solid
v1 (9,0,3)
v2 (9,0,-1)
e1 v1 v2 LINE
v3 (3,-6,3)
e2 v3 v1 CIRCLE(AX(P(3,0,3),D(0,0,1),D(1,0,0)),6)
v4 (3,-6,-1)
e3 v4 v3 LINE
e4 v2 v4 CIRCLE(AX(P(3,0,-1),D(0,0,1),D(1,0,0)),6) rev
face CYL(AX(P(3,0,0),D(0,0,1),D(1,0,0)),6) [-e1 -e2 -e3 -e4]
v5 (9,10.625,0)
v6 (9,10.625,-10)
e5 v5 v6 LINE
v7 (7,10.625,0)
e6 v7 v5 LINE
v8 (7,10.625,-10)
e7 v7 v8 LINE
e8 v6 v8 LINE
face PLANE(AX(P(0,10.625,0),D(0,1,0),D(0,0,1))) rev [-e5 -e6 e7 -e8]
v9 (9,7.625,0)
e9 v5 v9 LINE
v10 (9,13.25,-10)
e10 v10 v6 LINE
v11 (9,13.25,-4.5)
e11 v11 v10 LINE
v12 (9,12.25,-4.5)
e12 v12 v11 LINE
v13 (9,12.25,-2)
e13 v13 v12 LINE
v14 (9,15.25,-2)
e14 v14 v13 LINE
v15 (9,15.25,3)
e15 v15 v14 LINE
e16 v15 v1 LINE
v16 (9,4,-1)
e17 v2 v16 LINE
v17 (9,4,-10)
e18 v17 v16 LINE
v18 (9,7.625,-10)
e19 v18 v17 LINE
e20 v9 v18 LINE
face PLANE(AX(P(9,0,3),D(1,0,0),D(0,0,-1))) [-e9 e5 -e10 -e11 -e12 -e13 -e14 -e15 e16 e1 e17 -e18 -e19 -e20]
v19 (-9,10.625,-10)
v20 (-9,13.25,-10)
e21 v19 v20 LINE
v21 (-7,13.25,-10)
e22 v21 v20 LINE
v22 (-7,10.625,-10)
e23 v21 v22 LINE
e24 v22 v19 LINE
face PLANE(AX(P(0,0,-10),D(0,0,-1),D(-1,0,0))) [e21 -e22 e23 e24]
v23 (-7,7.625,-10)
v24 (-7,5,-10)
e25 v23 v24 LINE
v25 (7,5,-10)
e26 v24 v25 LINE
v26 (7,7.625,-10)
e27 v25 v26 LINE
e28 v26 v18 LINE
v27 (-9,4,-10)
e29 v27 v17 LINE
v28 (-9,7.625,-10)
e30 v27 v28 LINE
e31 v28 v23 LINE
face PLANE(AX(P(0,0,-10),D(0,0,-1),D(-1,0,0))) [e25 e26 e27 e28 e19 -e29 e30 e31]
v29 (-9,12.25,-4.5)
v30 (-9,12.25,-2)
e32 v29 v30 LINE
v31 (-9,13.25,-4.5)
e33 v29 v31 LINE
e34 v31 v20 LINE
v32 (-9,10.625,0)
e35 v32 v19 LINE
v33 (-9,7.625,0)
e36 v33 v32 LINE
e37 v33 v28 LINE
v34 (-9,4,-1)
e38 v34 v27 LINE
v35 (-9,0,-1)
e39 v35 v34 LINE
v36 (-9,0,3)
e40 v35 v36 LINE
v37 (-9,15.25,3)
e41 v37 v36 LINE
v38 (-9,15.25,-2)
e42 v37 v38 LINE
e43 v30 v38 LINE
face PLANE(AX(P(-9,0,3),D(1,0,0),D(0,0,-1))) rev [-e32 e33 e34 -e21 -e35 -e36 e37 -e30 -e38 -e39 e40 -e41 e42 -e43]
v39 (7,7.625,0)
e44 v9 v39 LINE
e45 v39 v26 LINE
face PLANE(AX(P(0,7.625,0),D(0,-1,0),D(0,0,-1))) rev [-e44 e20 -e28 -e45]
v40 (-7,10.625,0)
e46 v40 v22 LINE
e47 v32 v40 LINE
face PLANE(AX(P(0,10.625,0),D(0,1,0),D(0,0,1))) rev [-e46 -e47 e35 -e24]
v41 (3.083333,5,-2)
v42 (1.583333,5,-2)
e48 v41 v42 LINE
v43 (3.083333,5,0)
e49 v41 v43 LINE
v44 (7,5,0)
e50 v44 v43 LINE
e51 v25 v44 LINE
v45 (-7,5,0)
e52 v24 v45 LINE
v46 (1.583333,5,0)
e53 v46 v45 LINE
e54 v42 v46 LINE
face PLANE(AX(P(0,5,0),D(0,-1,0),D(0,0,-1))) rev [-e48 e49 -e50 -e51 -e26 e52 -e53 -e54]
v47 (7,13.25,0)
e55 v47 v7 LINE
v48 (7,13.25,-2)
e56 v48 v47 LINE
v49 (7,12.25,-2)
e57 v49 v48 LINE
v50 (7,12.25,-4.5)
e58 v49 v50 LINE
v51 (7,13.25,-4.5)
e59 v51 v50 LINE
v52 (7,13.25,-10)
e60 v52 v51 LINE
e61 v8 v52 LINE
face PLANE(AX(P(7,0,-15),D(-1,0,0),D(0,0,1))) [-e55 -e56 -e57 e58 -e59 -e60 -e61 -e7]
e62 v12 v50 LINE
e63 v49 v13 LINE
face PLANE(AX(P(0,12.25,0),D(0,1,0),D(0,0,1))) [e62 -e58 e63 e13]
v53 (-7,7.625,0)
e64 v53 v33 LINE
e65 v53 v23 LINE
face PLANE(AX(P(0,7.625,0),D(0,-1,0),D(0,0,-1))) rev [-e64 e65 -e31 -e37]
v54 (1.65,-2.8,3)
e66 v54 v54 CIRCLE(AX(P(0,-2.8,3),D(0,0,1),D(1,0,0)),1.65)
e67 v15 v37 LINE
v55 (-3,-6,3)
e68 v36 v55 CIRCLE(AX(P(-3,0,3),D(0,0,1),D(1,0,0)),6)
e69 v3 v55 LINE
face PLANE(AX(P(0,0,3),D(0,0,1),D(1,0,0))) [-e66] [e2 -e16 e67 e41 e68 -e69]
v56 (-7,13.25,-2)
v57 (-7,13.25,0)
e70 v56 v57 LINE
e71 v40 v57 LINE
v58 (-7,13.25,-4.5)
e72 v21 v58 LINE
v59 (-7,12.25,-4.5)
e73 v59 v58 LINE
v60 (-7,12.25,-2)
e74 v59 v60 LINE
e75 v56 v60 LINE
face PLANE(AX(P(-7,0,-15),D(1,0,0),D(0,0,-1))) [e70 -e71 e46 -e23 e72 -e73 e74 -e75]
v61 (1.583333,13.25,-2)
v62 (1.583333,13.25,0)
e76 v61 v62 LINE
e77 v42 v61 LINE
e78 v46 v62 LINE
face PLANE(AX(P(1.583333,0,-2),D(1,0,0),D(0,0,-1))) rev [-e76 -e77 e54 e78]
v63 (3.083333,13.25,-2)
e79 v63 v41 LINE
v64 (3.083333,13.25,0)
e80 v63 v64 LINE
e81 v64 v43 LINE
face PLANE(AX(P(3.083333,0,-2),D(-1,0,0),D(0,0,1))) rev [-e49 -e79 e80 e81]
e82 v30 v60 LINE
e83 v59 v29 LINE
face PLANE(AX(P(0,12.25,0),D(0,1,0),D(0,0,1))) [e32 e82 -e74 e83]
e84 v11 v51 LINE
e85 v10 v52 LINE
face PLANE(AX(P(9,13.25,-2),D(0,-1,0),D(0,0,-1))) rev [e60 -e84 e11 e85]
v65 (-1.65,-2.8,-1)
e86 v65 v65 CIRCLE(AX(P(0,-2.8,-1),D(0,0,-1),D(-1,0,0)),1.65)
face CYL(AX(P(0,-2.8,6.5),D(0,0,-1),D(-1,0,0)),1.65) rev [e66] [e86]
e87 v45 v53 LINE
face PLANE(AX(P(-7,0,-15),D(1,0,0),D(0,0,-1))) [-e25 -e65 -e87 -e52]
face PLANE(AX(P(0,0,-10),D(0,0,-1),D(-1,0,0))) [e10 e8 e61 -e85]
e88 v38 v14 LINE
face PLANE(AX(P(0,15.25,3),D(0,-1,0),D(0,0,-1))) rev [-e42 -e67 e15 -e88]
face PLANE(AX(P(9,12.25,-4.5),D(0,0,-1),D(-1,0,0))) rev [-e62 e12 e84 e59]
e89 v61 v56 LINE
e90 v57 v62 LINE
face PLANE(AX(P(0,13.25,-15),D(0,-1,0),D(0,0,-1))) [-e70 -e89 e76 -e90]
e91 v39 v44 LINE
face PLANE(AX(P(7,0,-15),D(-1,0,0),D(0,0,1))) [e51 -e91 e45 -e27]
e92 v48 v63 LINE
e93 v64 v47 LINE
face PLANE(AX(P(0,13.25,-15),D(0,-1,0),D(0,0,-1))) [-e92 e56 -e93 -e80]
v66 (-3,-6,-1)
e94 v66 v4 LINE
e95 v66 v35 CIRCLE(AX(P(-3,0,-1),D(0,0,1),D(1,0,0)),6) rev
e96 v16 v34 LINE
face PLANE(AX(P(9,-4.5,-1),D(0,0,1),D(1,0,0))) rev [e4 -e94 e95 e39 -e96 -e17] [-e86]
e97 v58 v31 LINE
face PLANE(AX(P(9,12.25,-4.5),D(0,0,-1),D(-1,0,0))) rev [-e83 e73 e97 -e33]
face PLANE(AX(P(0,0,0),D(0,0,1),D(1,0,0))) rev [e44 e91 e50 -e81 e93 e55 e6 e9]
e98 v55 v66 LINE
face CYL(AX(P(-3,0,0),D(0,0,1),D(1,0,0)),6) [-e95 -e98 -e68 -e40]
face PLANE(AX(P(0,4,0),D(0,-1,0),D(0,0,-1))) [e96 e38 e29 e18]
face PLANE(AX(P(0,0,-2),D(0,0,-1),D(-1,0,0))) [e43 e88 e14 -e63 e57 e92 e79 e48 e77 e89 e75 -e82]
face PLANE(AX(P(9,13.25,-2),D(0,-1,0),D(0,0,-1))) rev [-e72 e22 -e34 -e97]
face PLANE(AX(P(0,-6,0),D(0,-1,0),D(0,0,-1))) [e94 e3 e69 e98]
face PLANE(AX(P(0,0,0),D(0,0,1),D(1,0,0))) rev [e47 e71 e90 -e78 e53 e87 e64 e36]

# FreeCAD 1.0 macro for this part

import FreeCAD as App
import Part
import Sketcher
Q = App.Units.Quantity


def edges_at(feature, points):
    """Names of the edges that pass closest to the given points."""
    edges = feature.Shape.Edges
    near = lambda p: min(range(len(edges)), key=lambda i: edges[i].distToShape(Part.Vertex(*p))[0])
    return sorted({f"Edge{near(p) + 1}" for p in points})

doc = App.newDocument("Part")
body = doc.addObject("PartDesign::Body", "Body")

sketch1 = body.newObject("Sketcher::SketchObject", "Sketch")
sketch1.AttachmentSupport = (doc.getObject("XY_Plane"), [""])
sketch1.MapMode = "FlatFace"
sketch1.addGeometry(Part.LineSegment(App.Vector(-9, 15.2, 0), App.Vector(-9, 5, 0)), False)
sketch1.addGeometry(Part.LineSegment(App.Vector(-9, 5, 0), App.Vector(-6.5, 0, 0)), False)
sketch1.addGeometry(Part.LineSegment(App.Vector(-6.5, 0, 0), App.Vector(-2, -6, 0)), False)
sketch1.addGeometry(Part.LineSegment(App.Vector(-2, -6, 0), App.Vector(2, -6, 0)), False)
sketch1.addGeometry(Part.LineSegment(App.Vector(2, -6, 0), App.Vector(6.5, 0, 0)), False)
sketch1.addGeometry(Part.LineSegment(App.Vector(6.5, 0, 0), App.Vector(9, 5, 0)), False)
sketch1.addGeometry(Part.LineSegment(App.Vector(9, 5, 0), App.Vector(9, 15.2, 0)), False)
sketch1.addGeometry(Part.LineSegment(App.Vector(9, 15.2, 0), App.Vector(-9, 15.2, 0)), False)
sketch1.addGeometry(Part.Circle(App.Vector(0, 0, 0), App.Vector(0, 0, 1), 1.6), False)
sketch1.addConstraint(Sketcher.Constraint("Coincident", 0, 2, 1, 1))
sketch1.addConstraint(Sketcher.Constraint("Coincident", 1, 2, 2, 1))
sketch1.addConstraint(Sketcher.Constraint("Coincident", 2, 2, 3, 1))
sketch1.addConstraint(Sketcher.Constraint("Coincident", 3, 2, 4, 1))
sketch1.addConstraint(Sketcher.Constraint("Coincident", 4, 2, 5, 1))
sketch1.addConstraint(Sketcher.Constraint("Coincident", 5, 2, 6, 1))
sketch1.addConstraint(Sketcher.Constraint("Coincident", 6, 2, 7, 1))
sketch1.addConstraint(Sketcher.Constraint("Coincident", 7, 2, 0, 1))
sketch1.addConstraint(Sketcher.Constraint("Vertical", 0))
sketch1.addConstraint(Sketcher.Constraint("Horizontal", 3))
sketch1.addConstraint(Sketcher.Constraint("Vertical", 6))
sketch1.addConstraint(Sketcher.Constraint("Horizontal", 7))
sketch1.addConstraint(Sketcher.Constraint("Coincident", 8, 3, -1, 1))
sketch1.addConstraint(Sketcher.Constraint("Symmetric", 1, 2, 4, 2, -1, 1))
sketch1.addConstraint(Sketcher.Constraint("Symmetric", 0, 2, 5, 2, -2))
sketch1.addConstraint(Sketcher.Constraint("PointOnObject", 1, 2, -1))
sketch1.addConstraint(Sketcher.Constraint("Equal", 2, 4))
sketch1.addConstraint(Sketcher.Constraint("Diameter", 8, Q("3.3 mm")))
sketch1.addConstraint(Sketcher.Constraint("DistanceX", 7, 2, 7, 1, Q("18 mm")))
sketch1.addConstraint(Sketcher.Constraint("DistanceY", -1, 1, 0, 2, Q("5 mm")))
sketch1.addConstraint(Sketcher.Constraint("DistanceY", 2, 2, -1, 1, Q("6 mm")))
sketch1.addConstraint(Sketcher.Constraint("DistanceY", 0, 2, 0, 1, Q("10.25 mm")))
sketch1.addConstraint(Sketcher.Constraint("DistanceX", 3, 1, 3, 2, Q("4.041452 mm")))
sketch1.addConstraint(Sketcher.Constraint("DistanceX", 1, 2, -1, 1, Q("6.541452 mm")))
pad1 = body.newObject("PartDesign::Pad", "Pad")
pad1.Profile = sketch1
pad1.Length = 3

sketch2 = body.newObject("Sketcher::SketchObject", "Sketch001")
sketch2.AttachmentSupport = (doc.getObject("XY_Plane"), [""])
sketch2.MapMode = "FlatFace"
sketch2.AttachmentOffset = App.Placement(App.Vector(0, 0, -15), App.Rotation())
sketch2.addGeometry(Part.LineSegment(App.Vector(-9, 5, 0), App.Vector(-9, 15.2, 0)), False)
sketch2.addGeometry(Part.LineSegment(App.Vector(-9, 15.2, 0), App.Vector(9, 15.2, 0)), False)
sketch2.addGeometry(Part.LineSegment(App.Vector(9, 15.2, 0), App.Vector(9, 5, 0)), False)
sketch2.addGeometry(Part.LineSegment(App.Vector(9, 5, 0), App.Vector(6.5, 0, 0)), False)
sketch2.addGeometry(Part.LineSegment(App.Vector(6.5, 0, 0), App.Vector(2, -6, 0)), False)
sketch2.addGeometry(Part.LineSegment(App.Vector(2, -6, 0), App.Vector(-2, -6, 0)), False)
sketch2.addGeometry(Part.LineSegment(App.Vector(-2, -6, 0), App.Vector(-6.5, 0, 0)), False)
sketch2.addGeometry(Part.LineSegment(App.Vector(-6.5, 0, 0), App.Vector(-9, 5, 0)), False)
sketch2.addGeometry(Part.LineSegment(App.Vector(-7, 13.2, 0), App.Vector(-7, 5, 0)), False)
sketch2.addGeometry(Part.LineSegment(App.Vector(-7, 5, 0), App.Vector(7, 5, 0)), False)
sketch2.addGeometry(Part.LineSegment(App.Vector(7, 5, 0), App.Vector(7, 13.2, 0)), False)
sketch2.addGeometry(Part.LineSegment(App.Vector(7, 13.2, 0), App.Vector(-7, 13.2, 0)), False)
sketch2.addGeometry(Part.Circle(App.Vector(0, 0, 0), App.Vector(0, 0, 1), 1.6), False)
sketch2.addConstraint(Sketcher.Constraint("Coincident", 0, 2, 1, 1))
sketch2.addConstraint(Sketcher.Constraint("Coincident", 1, 2, 2, 1))
sketch2.addConstraint(Sketcher.Constraint("Coincident", 2, 2, 3, 1))
sketch2.addConstraint(Sketcher.Constraint("Coincident", 3, 2, 4, 1))
sketch2.addConstraint(Sketcher.Constraint("Coincident", 4, 2, 5, 1))
sketch2.addConstraint(Sketcher.Constraint("Coincident", 5, 2, 6, 1))
sketch2.addConstraint(Sketcher.Constraint("Coincident", 6, 2, 7, 1))
sketch2.addConstraint(Sketcher.Constraint("Coincident", 7, 2, 0, 1))
sketch2.addConstraint(Sketcher.Constraint("Coincident", 8, 2, 9, 1))
sketch2.addConstraint(Sketcher.Constraint("Coincident", 9, 2, 10, 1))
sketch2.addConstraint(Sketcher.Constraint("Coincident", 10, 2, 11, 1))
sketch2.addConstraint(Sketcher.Constraint("Coincident", 11, 2, 8, 1))
sketch2.addConstraint(Sketcher.Constraint("Vertical", 0))
sketch2.addConstraint(Sketcher.Constraint("Horizontal", 1))
sketch2.addConstraint(Sketcher.Constraint("Vertical", 2))
sketch2.addConstraint(Sketcher.Constraint("Horizontal", 5))
sketch2.addConstraint(Sketcher.Constraint("Vertical", 8))
sketch2.addConstraint(Sketcher.Constraint("Horizontal", 9))
sketch2.addConstraint(Sketcher.Constraint("Vertical", 10))
sketch2.addConstraint(Sketcher.Constraint("Horizontal", 11))
sketch2.addConstraint(Sketcher.Constraint("Coincident", 12, 3, -1, 1))
sketch2.addConstraint(Sketcher.Constraint("Symmetric", 3, 2, 6, 2, -1, 1))
sketch2.addConstraint(Sketcher.Constraint("Symmetric", 2, 2, 7, 2, -2))
sketch2.addConstraint(Sketcher.Constraint("PointOnObject", 3, 2, -1))
sketch2.addConstraint(Sketcher.Constraint("Horizontal", 7, 2, 8, 2))
sketch2.addConstraint(Sketcher.Constraint("Equal", 4, 6))
sketch2.addConstraint(Sketcher.Constraint("Diameter", 12, Q("3.3 mm")))
sketch2.addConstraint(Sketcher.Constraint("DistanceX", 1, 1, 1, 2, Q("18 mm")))
sketch2.addConstraint(Sketcher.Constraint("DistanceX", 9, 1, 9, 2, Q("14 mm")))
sketch2.addConstraint(Sketcher.Constraint("DistanceY", -1, 1, 2, 2, Q("5 mm")))
sketch2.addConstraint(Sketcher.Constraint("DistanceY", 4, 2, -1, 1, Q("6 mm")))
sketch2.addConstraint(Sketcher.Constraint("DistanceX", 8, 2, -1, 1, Q("7 mm")))
sketch2.addConstraint(Sketcher.Constraint("DistanceY", 10, 2, 1, 2, Q("2 mm")))
sketch2.addConstraint(Sketcher.Constraint("DistanceY", 0, 1, 0, 2, Q("10.25 mm")))
sketch2.addConstraint(Sketcher.Constraint("DistanceX", 5, 2, 5, 1, Q("4.041452 mm")))
sketch2.addConstraint(Sketcher.Constraint("DistanceX", -1, 1, 3, 2, Q("6.541452 mm")))
pad2 = body.newObject("PartDesign::Pad", "Pad001")
pad2.Profile = sketch2
pad2.Length = 15

sketch3 = body.newObject("Sketcher::SketchObject", "Sketch002")
sketch3.AttachmentSupport = (doc.getObject("XY_Plane"), [""])
sketch3.MapMode = "FlatFace"
sketch3.AttachmentOffset = App.Placement(App.Vector(0, 0, -15), App.Rotation())
sketch3.addGeometry(Part.LineSegment(App.Vector(9, 10.6, 0), App.Vector(9, 7.6, 0)), False)
sketch3.addGeometry(Part.LineSegment(App.Vector(9, 7.6, 0), App.Vector(7, 7.6, 0)), False)
sketch3.addGeometry(Part.LineSegment(App.Vector(7, 7.6, 0), App.Vector(7, 10.6, 0)), False)
sketch3.addGeometry(Part.LineSegment(App.Vector(7, 10.6, 0), App.Vector(9, 10.6, 0)), False)
sketch3.addGeometry(Part.LineSegment(App.Vector(-9, 7.6, 0), App.Vector(-9, 9.1, 0)), False)
sketch3.addGeometry(Part.LineSegment(App.Vector(-9, 9.1, 0), App.Vector(-9, 10.6, 0)), False)
sketch3.addGeometry(Part.LineSegment(App.Vector(-9, 10.6, 0), App.Vector(-7, 10.6, 0)), False)
sketch3.addGeometry(Part.LineSegment(App.Vector(-7, 10.6, 0), App.Vector(-7, 7.6, 0)), False)
sketch3.addGeometry(Part.LineSegment(App.Vector(-7, 7.6, 0), App.Vector(-9, 7.6, 0)), False)
sketch3.addConstraint(Sketcher.Constraint("Coincident", 0, 2, 1, 1))
sketch3.addConstraint(Sketcher.Constraint("Coincident", 1, 2, 2, 1))
sketch3.addConstraint(Sketcher.Constraint("Coincident", 2, 2, 3, 1))
sketch3.addConstraint(Sketcher.Constraint("Coincident", 3, 2, 0, 1))
sketch3.addConstraint(Sketcher.Constraint("Coincident", 4, 2, 5, 1))
sketch3.addConstraint(Sketcher.Constraint("Coincident", 5, 2, 6, 1))
sketch3.addConstraint(Sketcher.Constraint("Coincident", 6, 2, 7, 1))
sketch3.addConstraint(Sketcher.Constraint("Coincident", 7, 2, 8, 1))
sketch3.addConstraint(Sketcher.Constraint("Coincident", 8, 2, 4, 1))
sketch3.addConstraint(Sketcher.Constraint("Vertical", 0))
sketch3.addConstraint(Sketcher.Constraint("Horizontal", 1))
sketch3.addConstraint(Sketcher.Constraint("Vertical", 2))
sketch3.addConstraint(Sketcher.Constraint("Horizontal", 3))
sketch3.addConstraint(Sketcher.Constraint("Vertical", 4))
sketch3.addConstraint(Sketcher.Constraint("Vertical", 5))
sketch3.addConstraint(Sketcher.Constraint("Horizontal", 6))
sketch3.addConstraint(Sketcher.Constraint("Vertical", 7))
sketch3.addConstraint(Sketcher.Constraint("Horizontal", 8))
sketch3.addConstraint(Sketcher.Constraint("Symmetric", 3, 2, 5, 2, -2))
sketch3.addConstraint(Sketcher.Constraint("Symmetric", 1, 2, 7, 2, -2))
sketch3.addConstraint(Sketcher.Constraint("Equal", 4, 5))
sketch3.addConstraint(Sketcher.Constraint("DistanceX", 1, 2, 1, 1, Q("2 mm")))
sketch3.addConstraint(Sketcher.Constraint("DistanceY", 0, 2, 0, 1, Q("3 mm")))
sketch3.addConstraint(Sketcher.Constraint("DistanceX", -1, 1, 0, 2, Q("9 mm")))
sketch3.addConstraint(Sketcher.Constraint("DistanceY", -1, 1, 0, 2, Q("7.625 mm")))
pocket1 = body.newObject("PartDesign::Pocket", "Pocket")
pocket1.Profile = sketch3
pocket1.Length = 15
pocket1.Reversed = True

sketch4 = body.newObject("Sketcher::SketchObject", "Sketch003")
sketch4.AttachmentSupport = (doc.getObject("XY_Plane"), [""])
sketch4.MapMode = "FlatFace"
sketch4.addGeometry(Part.LineSegment(App.Vector(1.6, 13.2, 0), App.Vector(3.1, 13.2, 0)), False)
sketch4.addGeometry(Part.LineSegment(App.Vector(3.1, 13.2, 0), App.Vector(3.1, 5, 0)), False)
sketch4.addGeometry(Part.LineSegment(App.Vector(3.1, 5, 0), App.Vector(1.6, 5, 0)), False)
sketch4.addGeometry(Part.LineSegment(App.Vector(1.6, 5, 0), App.Vector(1.6, 13.2, 0)), False)
sketch4.addConstraint(Sketcher.Constraint("Coincident", 0, 2, 1, 1))
sketch4.addConstraint(Sketcher.Constraint("Coincident", 1, 2, 2, 1))
sketch4.addConstraint(Sketcher.Constraint("Coincident", 2, 2, 3, 1))
sketch4.addConstraint(Sketcher.Constraint("Coincident", 3, 2, 0, 1))
sketch4.addConstraint(Sketcher.Constraint("Horizontal", 0))
sketch4.addConstraint(Sketcher.Constraint("Vertical", 1))
sketch4.addConstraint(Sketcher.Constraint("Horizontal", 2))
sketch4.addConstraint(Sketcher.Constraint("Vertical", 3))
sketch4.addConstraint(Sketcher.Constraint("DistanceX", 0, 1, 0, 2, Q("1.5 mm")))
sketch4.addConstraint(Sketcher.Constraint("DistanceY", -1, 1, 1, 2, Q("5 mm")))
sketch4.addConstraint(Sketcher.Constraint("DistanceY", 1, 2, 1, 1, Q("8.25 mm")))
sketch4.addConstraint(Sketcher.Constraint("DistanceX", -1, 1, 0, 2, Q("3.083333 mm")))
pad3 = body.newObject("PartDesign::Pad", "Pad002")
pad3.Profile = sketch4
pad3.Length = 2
pad3.Reversed = True

sketch5 = body.newObject("Sketcher::SketchObject", "Sketch004")
sketch5.AttachmentSupport = (doc.getObject("XZ_Plane"), [""])
sketch5.MapMode = "FlatFace"
sketch5.AttachmentOffset = App.Placement(App.Vector(0, 0, 16), App.Rotation())
sketch5.addGeometry(Part.LineSegment(App.Vector(12, -16, 0), App.Vector(12, 5, 0)), False)
sketch5.addGeometry(Part.LineSegment(App.Vector(12, 5, 0), App.Vector(-12, 5, 0)), False)
sketch5.addGeometry(Part.LineSegment(App.Vector(-12, 5, 0), App.Vector(-12, -16, 0)), False)
sketch5.addGeometry(Part.LineSegment(App.Vector(-12, -16, 0), App.Vector(12, -16, 0)), False)
sketch5.addConstraint(Sketcher.Constraint("Coincident", 0, 2, 1, 1))
sketch5.addConstraint(Sketcher.Constraint("Coincident", 1, 2, 2, 1))
sketch5.addConstraint(Sketcher.Constraint("Coincident", 2, 2, 3, 1))
sketch5.addConstraint(Sketcher.Constraint("Coincident", 3, 2, 0, 1))
sketch5.addConstraint(Sketcher.Constraint("Vertical", 0))
sketch5.addConstraint(Sketcher.Constraint("Horizontal", 1))
sketch5.addConstraint(Sketcher.Constraint("Vertical", 2))
sketch5.addConstraint(Sketcher.Constraint("Horizontal", 3))
sketch5.addConstraint(Sketcher.Constraint("DistanceX", 1, 2, -1, 1, Q("11.691899 mm")))
sketch5.addConstraint(Sketcher.Constraint("DistanceX", 1, 2, 1, 1, Q("23.468317 mm")))
sketch5.addConstraint(Sketcher.Constraint("DistanceY", 0, 1, 0, 2, Q("21.298977 mm")))
sketch5.addConstraint(Sketcher.Constraint("DistanceY", 2, 2, -1, 1, Q("16.353669 mm")))
pocket2 = body.newObject("PartDesign::Pocket", "Pocket001")
pocket2.Profile = sketch5
pocket2.Length = 21

sketch6 = body.newObject("Sketcher::SketchObject", "Sketch005")
sketch6.AttachmentSupport = (doc.getObject("XZ_Plane"), [""])
sketch6.MapMode = "FlatFace"
sketch6.AttachmentOffset = App.Placement(App.Vector(0, 0, -5), App.Rotation())
sketch6.addGeometry(Part.LineSegment(App.Vector(-9, 3, 0), App.Vector(-9, -15, 0)), False)
sketch6.addGeometry(Part.LineSegment(App.Vector(-9, -15, 0), App.Vector(9, -15, 0)), False)
sketch6.addGeometry(Part.LineSegment(App.Vector(9, -15, 0), App.Vector(9, 3, 0)), False)
sketch6.addGeometry(Part.LineSegment(App.Vector(9, 3, 0), App.Vector(-9, 3, 0)), False)
sketch6.addConstraint(Sketcher.Constraint("Coincident", 0, 2, 1, 1))
sketch6.addConstraint(Sketcher.Constraint("Coincident", 1, 2, 2, 1))
sketch6.addConstraint(Sketcher.Constraint("Coincident", 2, 2, 3, 1))
sketch6.addConstraint(Sketcher.Constraint("Coincident", 3, 2, 0, 1))
sketch6.addConstraint(Sketcher.Constraint("Vertical", 0))
sketch6.addConstraint(Sketcher.Constraint("Horizontal", 1))
sketch6.addConstraint(Sketcher.Constraint("Vertical", 2))
sketch6.addConstraint(Sketcher.Constraint("Horizontal", 3))
sketch6.addConstraint(Sketcher.Constraint("Equal", 3, 0))
sketch6.addConstraint(Sketcher.Constraint("DistanceX", 1, 1, 1, 2, Q("18 mm")))
sketch6.addConstraint(Sketcher.Constraint("DistanceX", 0, 2, -1, 1, Q("9 mm")))
sketch6.addConstraint(Sketcher.Constraint("DistanceY", 0, 2, -1, 1, Q("15 mm")))
pad4 = body.newObject("PartDesign::Pad", "Pad003")
pad4.Profile = sketch6
pad4.Length = 2

sketch7 = body.newObject("Sketcher::SketchObject", "Sketch006")
sketch7.AttachmentSupport = (doc.getObject("XY_Plane"), [""])
sketch7.MapMode = "FlatFace"
sketch7.AttachmentOffset = App.Placement(App.Vector(0, 0, -15), App.Rotation())
sketch7.addGeometry(Part.LineSegment(App.Vector(-7, 7.6, 0), App.Vector(-7, 5, 0)), False)
sketch7.addGeometry(Part.LineSegment(App.Vector(-7, 5, 0), App.Vector(7, 5, 0)), False)
sketch7.addGeometry(Part.LineSegment(App.Vector(7, 5, 0), App.Vector(7, 7.6, 0)), False)
sketch7.addGeometry(Part.LineSegment(App.Vector(7, 7.6, 0), App.Vector(9, 7.6, 0)), False)
sketch7.addGeometry(Part.LineSegment(App.Vector(9, 7.6, 0), App.Vector(9, 3, 0)), False)
sketch7.addGeometry(Part.LineSegment(App.Vector(9, 3, 0), App.Vector(-9, 3, 0)), False)
sketch7.addGeometry(Part.LineSegment(App.Vector(-9, 3, 0), App.Vector(-9, 7.6, 0)), False)
sketch7.addGeometry(Part.LineSegment(App.Vector(-9, 7.6, 0), App.Vector(-7, 7.6, 0)), False)
sketch7.addGeometry(Part.LineSegment(App.Vector(-7, 10.6, 0), App.Vector(-9, 10.6, 0)), False)
sketch7.addGeometry(Part.LineSegment(App.Vector(-9, 10.6, 0), App.Vector(-9, 15.2, 0)), False)
sketch7.addGeometry(Part.LineSegment(App.Vector(-9, 15.2, 0), App.Vector(9, 15.2, 0)), False)
sketch7.addGeometry(Part.LineSegment(App.Vector(9, 15.2, 0), App.Vector(9, 10.6, 0)), False)
sketch7.addGeometry(Part.LineSegment(App.Vector(9, 10.6, 0), App.Vector(7, 10.6, 0)), False)
sketch7.addGeometry(Part.LineSegment(App.Vector(7, 10.6, 0), App.Vector(7, 13.2, 0)), False)
sketch7.addGeometry(Part.LineSegment(App.Vector(7, 13.2, 0), App.Vector(-7, 13.2, 0)), False)
sketch7.addGeometry(Part.LineSegment(App.Vector(-7, 13.2, 0), App.Vector(-7, 10.6, 0)), False)
sketch7.addConstraint(Sketcher.Constraint("Coincident", 0, 2, 1, 1))
sketch7.addConstraint(Sketcher.Constraint("Coincident", 1, 2, 2, 1))
sketch7.addConstraint(Sketcher.Constraint("Coincident", 2, 2, 3, 1))
sketch7.addConstraint(Sketcher.Constraint("Coincident", 3, 2, 4, 1))
sketch7.addConstraint(Sketcher.Constraint("Coincident", 4, 2, 5, 1))
sketch7.addConstraint(Sketcher.Constraint("Coincident", 5, 2, 6, 1))
sketch7.addConstraint(Sketcher.Constraint("Coincident", 6, 2, 7, 1))
sketch7.addConstraint(Sketcher.Constraint("Coincident", 7, 2, 0, 1))
sketch7.addConstraint(Sketcher.Constraint("Coincident", 8, 2, 9, 1))
sketch7.addConstraint(Sketcher.Constraint("Coincident", 9, 2, 10, 1))
sketch7.addConstraint(Sketcher.Constraint("Coincident", 10, 2, 11, 1))
sketch7.addConstraint(Sketcher.Constraint("Coincident", 11, 2, 12, 1))
sketch7.addConstraint(Sketcher.Constraint("Coincident", 12, 2, 13, 1))
sketch7.addConstraint(Sketcher.Constraint("Coincident", 13, 2, 14, 1))
sketch7.addConstraint(Sketcher.Constraint("Coincident", 14, 2, 15, 1))
sketch7.addConstraint(Sketcher.Constraint("Coincident", 15, 2, 8, 1))
sketch7.addConstraint(Sketcher.Constraint("Vertical", 0))
sketch7.addConstraint(Sketcher.Constraint("Horizontal", 1))
sketch7.addConstraint(Sketcher.Constraint("Vertical", 2))
sketch7.addConstraint(Sketcher.Constraint("Horizontal", 3))
sketch7.addConstraint(Sketcher.Constraint("Vertical", 4))
sketch7.addConstraint(Sketcher.Constraint("Horizontal", 5))
sketch7.addConstraint(Sketcher.Constraint("Vertical", 6))
sketch7.addConstraint(Sketcher.Constraint("Horizontal", 7))
sketch7.addConstraint(Sketcher.Constraint("Horizontal", 8))
sketch7.addConstraint(Sketcher.Constraint("Vertical", 9))
sketch7.addConstraint(Sketcher.Constraint("Horizontal", 10))
sketch7.addConstraint(Sketcher.Constraint("Vertical", 11))
sketch7.addConstraint(Sketcher.Constraint("Horizontal", 12))
sketch7.addConstraint(Sketcher.Constraint("Vertical", 13))
sketch7.addConstraint(Sketcher.Constraint("Horizontal", 14))
sketch7.addConstraint(Sketcher.Constraint("Vertical", 15))
sketch7.addConstraint(Sketcher.Constraint("Symmetric", 3, 2, 6, 2, -2))
sketch7.addConstraint(Sketcher.Constraint("Symmetric", 8, 2, 11, 2, -2))
sketch7.addConstraint(Sketcher.Constraint("Vertical", 6, 2, 8, 2))
sketch7.addConstraint(Sketcher.Constraint("Vertical", 2, 2, 12, 2))
sketch7.addConstraint(Sketcher.Constraint("Vertical", 7, 2, 14, 2))
sketch7.addConstraint(Sketcher.Constraint("Equal", 3, 7))
sketch7.addConstraint(Sketcher.Constraint("Equal", 6, 9))
sketch7.addConstraint(Sketcher.Constraint("Equal", 2, 13))
sketch7.addConstraint(Sketcher.Constraint("DistanceX", 1, 1, 1, 2, Q("14 mm")))
sketch7.addConstraint(Sketcher.Constraint("DistanceX", 3, 1, 3, 2, Q("2 mm")))
sketch7.addConstraint(Sketcher.Constraint("DistanceY", -1, 1, 0, 2, Q("5 mm")))
sketch7.addConstraint(Sketcher.Constraint("DistanceY", -1, 1, 4, 2, Q("3 mm")))
sketch7.addConstraint(Sketcher.Constraint("DistanceY", 6, 2, 8, 2, Q("3 mm")))
sketch7.addConstraint(Sketcher.Constraint("DistanceY", 0, 2, 0, 1, Q("2.625 mm")))
pocket3 = body.newObject("PartDesign::Pocket", "Pocket002")
pocket3.Profile = sketch7
pocket3.Length = 5
pocket3.Reversed = True

sketch8 = body.newObject("Sketcher::SketchObject", "Sketch007")
sketch8.AttachmentSupport = (doc.getObject("XY_Plane"), [""])
sketch8.MapMode = "FlatFace"
sketch8.AttachmentOffset = App.Placement(App.Vector(0, 0, -10), App.Rotation())
sketch8.addGeometry(Part.LineSegment(App.Vector(9, 15.2, 0), App.Vector(9, 13.2, 0)), False)
sketch8.addGeometry(Part.LineSegment(App.Vector(9, 13.2, 0), App.Vector(-9, 13.2, 0)), False)
sketch8.addGeometry(Part.LineSegment(App.Vector(-9, 13.2, 0), App.Vector(-9, 15.2, 0)), False)
sketch8.addGeometry(Part.LineSegment(App.Vector(-9, 15.2, 0), App.Vector(9, 15.2, 0)), False)
sketch8.addConstraint(Sketcher.Constraint("Coincident", 0, 2, 1, 1))
sketch8.addConstraint(Sketcher.Constraint("Coincident", 1, 2, 2, 1))
sketch8.addConstraint(Sketcher.Constraint("Coincident", 2, 2, 3, 1))
sketch8.addConstraint(Sketcher.Constraint("Coincident", 3, 2, 0, 1))
sketch8.addConstraint(Sketcher.Constraint("Vertical", 0))
sketch8.addConstraint(Sketcher.Constraint("Horizontal", 1))
sketch8.addConstraint(Sketcher.Constraint("Vertical", 2))
sketch8.addConstraint(Sketcher.Constraint("Horizontal", 3))
sketch8.addConstraint(Sketcher.Constraint("DistanceX", 1, 2, 1, 1, Q("18 mm")))
sketch8.addConstraint(Sketcher.Constraint("DistanceY", 0, 2, 0, 1, Q("2 mm")))
sketch8.addConstraint(Sketcher.Constraint("DistanceX", -1, 1, 0, 2, Q("9 mm")))
sketch8.addConstraint(Sketcher.Constraint("DistanceY", -1, 1, 0, 2, Q("13.25 mm")))
pocket4 = body.newObject("PartDesign::Pocket", "Pocket003")
pocket4.Profile = sketch8
pocket4.Length = 8
pocket4.Reversed = True

sketch9 = body.newObject("Sketcher::SketchObject", "Sketch008")
sketch9.AttachmentSupport = (doc.getObject("XZ_Plane"), [""])
sketch9.MapMode = "FlatFace"
sketch9.AttachmentOffset = App.Placement(App.Vector(0, 0, -3), App.Rotation())
sketch9.addGeometry(Part.LineSegment(App.Vector(-9, 3, 0), App.Vector(-9, -1, 0)), False)
sketch9.addGeometry(Part.LineSegment(App.Vector(-9, -1, 0), App.Vector(9, -1, 0)), False)
sketch9.addGeometry(Part.LineSegment(App.Vector(9, -1, 0), App.Vector(9, 3, 0)), False)
sketch9.addGeometry(Part.LineSegment(App.Vector(9, 3, 0), App.Vector(-9, 3, 0)), False)
sketch9.addConstraint(Sketcher.Constraint("Coincident", 0, 2, 1, 1))
sketch9.addConstraint(Sketcher.Constraint("Coincident", 1, 2, 2, 1))
sketch9.addConstraint(Sketcher.Constraint("Coincident", 2, 2, 3, 1))
sketch9.addConstraint(Sketcher.Constraint("Coincident", 3, 2, 0, 1))
sketch9.addConstraint(Sketcher.Constraint("Vertical", 0))
sketch9.addConstraint(Sketcher.Constraint("Horizontal", 1))
sketch9.addConstraint(Sketcher.Constraint("Vertical", 2))
sketch9.addConstraint(Sketcher.Constraint("Horizontal", 3))
sketch9.addConstraint(Sketcher.Constraint("DistanceX", 1, 1, 1, 2, Q("18 mm")))
sketch9.addConstraint(Sketcher.Constraint("DistanceY", 0, 2, 0, 1, Q("4 mm")))
sketch9.addConstraint(Sketcher.Constraint("DistanceX", 0, 2, -1, 1, Q("9 mm")))
sketch9.addConstraint(Sketcher.Constraint("DistanceY", 0, 2, -1, 1, Q("1 mm")))
pad5 = body.newObject("PartDesign::Pad", "Pad004")
pad5.Profile = sketch9
pad5.Length = 7.5

sketch10 = body.newObject("Sketcher::SketchObject", "Sketch009")
sketch10.AttachmentSupport = (doc.getObject("XY_Plane"), [""])
sketch10.MapMode = "FlatFace"
sketch10.AttachmentOffset = App.Placement(App.Vector(0, 0, -1), App.Rotation())
sketch10.addGeometry(Part.Circle(App.Vector(0, -2.8, 0), App.Vector(0, 0, 1), 1.6), False)
sketch10.addConstraint(Sketcher.Constraint("PointOnObject", 0, 3, -2))
sketch10.addConstraint(Sketcher.Constraint("Diameter", 0, Q("3.3 mm")))
sketch10.addConstraint(Sketcher.Constraint("DistanceY", 0, 3, -1, 1, Q("2.8 mm")))
pocket5 = body.newObject("PartDesign::Pocket", "Pocket004")
pocket5.Profile = sketch10
pocket5.Length = 7.5
pocket5.Reversed = True

sketch11 = body.newObject("Sketcher::SketchObject", "Sketch010")
sketch11.AttachmentSupport = (doc.getObject("XZ_Plane"), [""])
sketch11.MapMode = "FlatFace"
sketch11.AttachmentOffset = App.Placement(App.Vector(0, 0, 4.5), App.Rotation())
sketch11.addGeometry(Part.LineSegment(App.Vector(-9, 3, 0), App.Vector(-9, -1, 0)), False)
sketch11.addGeometry(Part.LineSegment(App.Vector(-9, -1, 0), App.Vector(9, -1, 0)), False)
sketch11.addGeometry(Part.LineSegment(App.Vector(9, -1, 0), App.Vector(9, 3, 0)), False)
sketch11.addGeometry(Part.LineSegment(App.Vector(9, 3, 0), App.Vector(-9, 3, 0)), False)
sketch11.addConstraint(Sketcher.Constraint("Coincident", 0, 2, 1, 1))
sketch11.addConstraint(Sketcher.Constraint("Coincident", 1, 2, 2, 1))
sketch11.addConstraint(Sketcher.Constraint("Coincident", 2, 2, 3, 1))
sketch11.addConstraint(Sketcher.Constraint("Coincident", 3, 2, 0, 1))
sketch11.addConstraint(Sketcher.Constraint("Vertical", 0))
sketch11.addConstraint(Sketcher.Constraint("Horizontal", 1))
sketch11.addConstraint(Sketcher.Constraint("Vertical", 2))
sketch11.addConstraint(Sketcher.Constraint("Horizontal", 3))
sketch11.addConstraint(Sketcher.Constraint("DistanceX", 1, 1, 1, 2, Q("18 mm")))
sketch11.addConstraint(Sketcher.Constraint("DistanceY", 0, 2, 0, 1, Q("4 mm")))
sketch11.addConstraint(Sketcher.Constraint("DistanceX", 0, 2, -1, 1, Q("9 mm")))
sketch11.addConstraint(Sketcher.Constraint("DistanceY", 0, 2, -1, 1, Q("1 mm")))
pad6 = body.newObject("PartDesign::Pad", "Pad005")
pad6.Profile = sketch11
pad6.Length = 1.5
doc.recompute()

fillet = body.newObject("PartDesign::Fillet", "Fillet")
fillet.Base = (pad6, edges_at(pad6, [(-9, -6, 1), (9, -6, 1)]))
fillet.Radius = 6

sketch12 = body.newObject("Sketcher::SketchObject", "Sketch011")
sketch12.AttachmentSupport = (doc.getObject("XZ_Plane"), [""])
sketch12.MapMode = "FlatFace"
sketch12.AttachmentOffset = App.Placement(App.Vector(0, 0, -13.25), App.Rotation())
sketch12.addGeometry(Part.LineSegment(App.Vector(-9, -4.5, 0), App.Vector(-9, -2, 0)), False)
sketch12.addGeometry(Part.LineSegment(App.Vector(-9, -2, 0), App.Vector(9, -2, 0)), False)
sketch12.addGeometry(Part.LineSegment(App.Vector(9, -2, 0), App.Vector(9, -4.5, 0)), False)
sketch12.addGeometry(Part.LineSegment(App.Vector(9, -4.5, 0), App.Vector(-9, -4.5, 0)), False)
sketch12.addConstraint(Sketcher.Constraint("Coincident", 0, 2, 1, 1))
sketch12.addConstraint(Sketcher.Constraint("Coincident", 1, 2, 2, 1))
sketch12.addConstraint(Sketcher.Constraint("Coincident", 2, 2, 3, 1))
sketch12.addConstraint(Sketcher.Constraint("Coincident", 3, 2, 0, 1))
sketch12.addConstraint(Sketcher.Constraint("Vertical", 0))
sketch12.addConstraint(Sketcher.Constraint("Horizontal", 1))
sketch12.addConstraint(Sketcher.Constraint("Vertical", 2))
sketch12.addConstraint(Sketcher.Constraint("Horizontal", 3))
sketch12.addConstraint(Sketcher.Constraint("DistanceX", 1, 1, 1, 2, Q("18 mm")))
sketch12.addConstraint(Sketcher.Constraint("DistanceY", 0, 1, 0, 2, Q("2.5 mm")))
sketch12.addConstraint(Sketcher.Constraint("DistanceX", 0, 2, -1, 1, Q("9 mm")))
sketch12.addConstraint(Sketcher.Constraint("DistanceY", 0, 2, -1, 1, Q("2 mm")))
pocket6 = body.newObject("PartDesign::Pocket", "Pocket005")
pocket6.Profile = sketch12
pocket6.Length = 1
pocket6.Reversed = True

sketch13 = body.newObject("Sketcher::SketchObject", "Sketch012")
sketch13.AttachmentSupport = (doc.getObject("XZ_Plane"), [""])
sketch13.MapMode = "FlatFace"
sketch13.AttachmentOffset = App.Placement(App.Vector(0, 0, -3), App.Rotation())
sketch13.addGeometry(Part.LineSegment(App.Vector(-9, -1, 0), App.Vector(-9, -10, 0)), False)
sketch13.addGeometry(Part.LineSegment(App.Vector(-9, -10, 0), App.Vector(9, -10, 0)), False)
sketch13.addGeometry(Part.LineSegment(App.Vector(9, -10, 0), App.Vector(9, -1, 0)), False)
sketch13.addGeometry(Part.LineSegment(App.Vector(9, -1, 0), App.Vector(-9, -1, 0)), False)
sketch13.addConstraint(Sketcher.Constraint("Coincident", 0, 2, 1, 1))
sketch13.addConstraint(Sketcher.Constraint("Coincident", 1, 2, 2, 1))
sketch13.addConstraint(Sketcher.Constraint("Coincident", 2, 2, 3, 1))
sketch13.addConstraint(Sketcher.Constraint("Coincident", 3, 2, 0, 1))
sketch13.addConstraint(Sketcher.Constraint("Vertical", 0))
sketch13.addConstraint(Sketcher.Constraint("Horizontal", 1))
sketch13.addConstraint(Sketcher.Constraint("Vertical", 2))
sketch13.addConstraint(Sketcher.Constraint("Horizontal", 3))
sketch13.addConstraint(Sketcher.Constraint("DistanceX", 1, 1, 1, 2, Q("18 mm")))
sketch13.addConstraint(Sketcher.Constraint("DistanceY", 0, 2, 0, 1, Q("9 mm")))
sketch13.addConstraint(Sketcher.Constraint("DistanceX", 0, 2, -1, 1, Q("9 mm")))
sketch13.addConstraint(Sketcher.Constraint("DistanceY", 0, 2, -1, 1, Q("10 mm")))
pocket7 = body.newObject("PartDesign::Pocket", "Pocket006")
pocket7.Profile = sketch13
pocket7.Length = 1

doc.recompute()
